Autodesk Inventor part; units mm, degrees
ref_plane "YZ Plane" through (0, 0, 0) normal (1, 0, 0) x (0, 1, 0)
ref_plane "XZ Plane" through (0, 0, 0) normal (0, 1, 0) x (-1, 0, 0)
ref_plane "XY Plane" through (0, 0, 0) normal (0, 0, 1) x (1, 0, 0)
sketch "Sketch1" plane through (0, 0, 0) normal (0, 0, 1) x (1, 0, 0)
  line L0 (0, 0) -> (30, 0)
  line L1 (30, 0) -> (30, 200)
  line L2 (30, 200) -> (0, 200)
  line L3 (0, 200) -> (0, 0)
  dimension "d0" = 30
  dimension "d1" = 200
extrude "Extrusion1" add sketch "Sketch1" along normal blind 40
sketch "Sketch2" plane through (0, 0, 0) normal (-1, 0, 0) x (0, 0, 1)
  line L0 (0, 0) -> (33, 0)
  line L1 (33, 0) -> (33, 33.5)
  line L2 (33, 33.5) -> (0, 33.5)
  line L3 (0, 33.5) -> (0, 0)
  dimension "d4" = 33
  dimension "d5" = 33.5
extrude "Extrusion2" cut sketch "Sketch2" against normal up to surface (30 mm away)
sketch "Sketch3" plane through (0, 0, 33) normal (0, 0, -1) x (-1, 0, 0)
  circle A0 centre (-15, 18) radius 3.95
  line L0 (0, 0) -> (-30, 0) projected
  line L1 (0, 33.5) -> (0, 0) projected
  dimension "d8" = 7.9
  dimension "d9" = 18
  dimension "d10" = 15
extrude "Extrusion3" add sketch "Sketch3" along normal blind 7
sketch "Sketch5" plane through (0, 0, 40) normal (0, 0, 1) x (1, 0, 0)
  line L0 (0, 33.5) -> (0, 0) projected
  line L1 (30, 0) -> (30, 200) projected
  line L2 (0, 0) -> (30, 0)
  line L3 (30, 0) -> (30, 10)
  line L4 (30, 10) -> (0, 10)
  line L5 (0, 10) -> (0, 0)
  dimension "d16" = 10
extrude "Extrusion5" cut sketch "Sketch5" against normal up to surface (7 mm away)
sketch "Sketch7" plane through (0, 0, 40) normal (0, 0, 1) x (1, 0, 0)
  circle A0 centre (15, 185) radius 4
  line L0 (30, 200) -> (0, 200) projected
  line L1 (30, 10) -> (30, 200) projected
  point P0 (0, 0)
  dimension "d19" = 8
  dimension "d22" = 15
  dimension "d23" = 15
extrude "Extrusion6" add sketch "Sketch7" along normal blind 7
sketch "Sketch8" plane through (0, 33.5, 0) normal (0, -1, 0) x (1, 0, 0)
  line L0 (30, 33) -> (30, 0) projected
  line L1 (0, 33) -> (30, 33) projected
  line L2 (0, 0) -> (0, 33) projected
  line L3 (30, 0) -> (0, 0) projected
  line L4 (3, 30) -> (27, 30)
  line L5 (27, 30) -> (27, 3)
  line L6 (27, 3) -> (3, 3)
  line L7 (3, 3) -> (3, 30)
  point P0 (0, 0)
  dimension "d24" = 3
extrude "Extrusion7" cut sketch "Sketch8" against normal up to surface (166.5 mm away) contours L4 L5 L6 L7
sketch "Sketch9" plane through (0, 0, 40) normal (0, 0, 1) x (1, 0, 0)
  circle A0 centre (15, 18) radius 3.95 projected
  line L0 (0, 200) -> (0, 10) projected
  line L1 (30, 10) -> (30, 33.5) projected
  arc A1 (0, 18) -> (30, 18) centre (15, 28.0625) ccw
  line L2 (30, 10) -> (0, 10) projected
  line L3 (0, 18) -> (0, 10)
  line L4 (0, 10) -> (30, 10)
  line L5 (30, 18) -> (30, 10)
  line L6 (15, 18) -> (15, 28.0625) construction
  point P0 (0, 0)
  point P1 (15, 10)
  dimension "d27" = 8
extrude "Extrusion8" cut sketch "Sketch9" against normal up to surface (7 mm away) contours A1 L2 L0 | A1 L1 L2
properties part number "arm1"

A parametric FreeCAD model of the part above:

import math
import FreeCAD as App
import Part
import Sketcher


def add_polygon(sketch, points):
    """Adds a closed chain of lines whose ends are joined by coincident constraints."""
    first, n = sketch.GeometryCount, len(points)
    for a, b in zip(points, points[1:] + points[:1]):
        sketch.addGeometry(Part.LineSegment(App.Vector(*a, 0), App.Vector(*b, 0)), False)
    for i in range(n):
        sketch.addConstraint(Sketcher.Constraint("Coincident", first + i, 2, first + (i + 1) % n, 1))

doc = App.newDocument("Part")
body = doc.addObject("PartDesign::Body", "Body")

# Sketch on XY plane
sketch1 = body.newObject("Sketcher::SketchObject", "Sketch")
sketch1.AttachmentSupport = (doc.getObject("XY_Plane"), [""])
sketch1.MapMode = "FlatFace"
add_polygon(sketch1, [(0, 200), (0, 0), (30, 0), (30, 200)])  # lines 0-3
sketch1.addConstraint(Sketcher.Constraint("Vertical", 0))
sketch1.addConstraint(Sketcher.Constraint("Horizontal", 1))
sketch1.addConstraint(Sketcher.Constraint("Vertical", 2))
sketch1.addConstraint(Sketcher.Constraint("Horizontal", 3))
sketch1.addConstraint(Sketcher.Constraint("Coincident", 0, 2, -1, 1))
sketch1.addConstraint(Sketcher.Constraint("DistanceX", 1, 1, 1, 2, 30.0))
sketch1.addConstraint(Sketcher.Constraint("DistanceY", 0, 2, 0, 1, 200.0))
pad1 = body.newObject("PartDesign::Pad", "Pad")
pad1.Profile = sketch1
pad1.Length = 40

# Sketch on YZ plane
sketch2 = body.newObject("Sketcher::SketchObject", "Sketch001")
sketch2.AttachmentSupport = (doc.getObject("YZ_Plane"), [""])
sketch2.MapMode = "FlatFace"
add_polygon(sketch2, [(33.5, 0), (0, 0), (0, 33), (33.5, 33)])  # lines 0-3
sketch2.addConstraint(Sketcher.Constraint("Horizontal", 0))
sketch2.addConstraint(Sketcher.Constraint("Vertical", 1))
sketch2.addConstraint(Sketcher.Constraint("Horizontal", 2))
sketch2.addConstraint(Sketcher.Constraint("Vertical", 3))
sketch2.addConstraint(Sketcher.Constraint("Coincident", 0, 2, -1, 1))
sketch2.addConstraint(Sketcher.Constraint("DistanceY", 1, 1, 1, 2, 33.0))
sketch2.addConstraint(Sketcher.Constraint("DistanceX", 0, 2, 0, 1, 33.5))
pocket1 = body.newObject("PartDesign::Pocket", "Pocket")
pocket1.Profile = sketch2
pocket1.Length = 30
pocket1.Reversed = True

# Sketch on XY plane
sketch3 = body.newObject("Sketcher::SketchObject", "Sketch002")
sketch3.AttachmentSupport = (doc.getObject("XY_Plane"), [""])
sketch3.MapMode = "FlatFace"
sketch3.AttachmentOffset = App.Placement(App.Vector(0, 0, 33), App.Rotation())
sketch3.addGeometry(Part.Circle(App.Vector(15, 18, 0), App.Vector(0, 0, 1), 3.95), False)
sketch3.addConstraint(Sketcher.Constraint("Diameter", 0, 7.9))
sketch3.addConstraint(Sketcher.Constraint("DistanceX", -1, 1, 0, 3, 15.0))
sketch3.addConstraint(Sketcher.Constraint("DistanceY", -1, 1, 0, 3, 18.0))
pad2 = body.newObject("PartDesign::Pad", "Pad001")
pad2.Profile = sketch3
pad2.Length = 7
pad2.Reversed = True

# Sketch on XY plane
sketch4 = body.newObject("Sketcher::SketchObject", "Sketch003")
sketch4.AttachmentSupport = (doc.getObject("XY_Plane"), [""])
sketch4.MapMode = "FlatFace"
sketch4.AttachmentOffset = App.Placement(App.Vector(0, 0, 40), App.Rotation())
add_polygon(sketch4, [(30, 10), (0, 10), (0, 0), (30, 0)])  # lines 0-3
sketch4.addConstraint(Sketcher.Constraint("Horizontal", 0))
sketch4.addConstraint(Sketcher.Constraint("Vertical", 1))
sketch4.addConstraint(Sketcher.Constraint("Horizontal", 2))
sketch4.addConstraint(Sketcher.Constraint("Vertical", 3))
sketch4.addConstraint(Sketcher.Constraint("Coincident", 1, 2, -1, 1))
sketch4.addConstraint(Sketcher.Constraint("DistanceY", 1, 2, 1, 1, 10.0))
sketch4.addConstraint(Sketcher.Constraint("DistanceX", 0, 2, 0, 1, 30.0))
pocket2 = body.newObject("PartDesign::Pocket", "Pocket001")
pocket2.Profile = sketch4
pocket2.Length = 7

# Sketch on XY plane
sketch5 = body.newObject("Sketcher::SketchObject", "Sketch004")
sketch5.AttachmentSupport = (doc.getObject("XY_Plane"), [""])
sketch5.MapMode = "FlatFace"
sketch5.AttachmentOffset = App.Placement(App.Vector(0, 0, 40), App.Rotation())
sketch5.addGeometry(Part.Circle(App.Vector(15, 185, 0), App.Vector(0, 0, 1), 4), False)
sketch5.addConstraint(Sketcher.Constraint("Diameter", 0, 8.0))
sketch5.addConstraint(Sketcher.Constraint("DistanceX", -1, 1, 0, 3, 15.0))
sketch5.addConstraint(Sketcher.Constraint("DistanceY", -1, 1, 0, 3, 185.0))
pad3 = body.newObject("PartDesign::Pad", "Pad002")
pad3.Profile = sketch5
pad3.Length = 7

# Sketch on XZ plane
sketch6 = body.newObject("Sketcher::SketchObject", "Sketch005")
sketch6.AttachmentSupport = (doc.getObject("XZ_Plane"), [""])
sketch6.MapMode = "FlatFace"
sketch6.AttachmentOffset = App.Placement(App.Vector(0, 0, -33.5), App.Rotation())
add_polygon(sketch6, [(27, 30), (3, 30), (3, 3), (27, 3)])  # lines 0-3
sketch6.addConstraint(Sketcher.Constraint("Horizontal", 0))
sketch6.addConstraint(Sketcher.Constraint("Vertical", 1))
sketch6.addConstraint(Sketcher.Constraint("Horizontal", 2))
sketch6.addConstraint(Sketcher.Constraint("Vertical", 3))
sketch6.addConstraint(Sketcher.Constraint("DistanceX", -1, 1, 0, 2, 3.0))
sketch6.addConstraint(Sketcher.Constraint("DistanceY", -1, 1, 1, 2, 3.0))
sketch6.addConstraint(Sketcher.Constraint("DistanceX", 0, 2, 0, 1, 24.0))
sketch6.addConstraint(Sketcher.Constraint("DistanceY", 1, 2, 1, 1, 27.0))
pocket3 = body.newObject("PartDesign::Pocket", "Pocket002")
pocket3.Profile = sketch6
pocket3.Length = 166.5

# Sketch on XY plane
sketch7 = body.newObject("Sketcher::SketchObject", "Sketch006")
sketch7.AttachmentSupport = (doc.getObject("XY_Plane"), [""])
sketch7.MapMode = "FlatFace"
sketch7.AttachmentOffset = App.Placement(App.Vector(0, 0, 40), App.Rotation())
sketch7.addGeometry(Part.ArcOfCircle(Part.Circle(App.Vector(15, 28.0625, 0), App.Vector(0, 0, 1), 18.0625), math.radians(-146.144974), math.radians(-90)), False)
sketch7.addGeometry(Part.LineSegment(App.Vector(0, 18, 0), App.Vector(0, 10, 0)), False)
sketch7.addGeometry(Part.LineSegment(App.Vector(0, 10, 0), App.Vector(15, 10, 0)), False)
sketch7.addGeometry(Part.ArcOfCircle(Part.Circle(App.Vector(15, 28.0625, 0), App.Vector(0, 0, 1), 18.0625), math.radians(-90), math.radians(-33.855026)), False)
sketch7.addGeometry(Part.LineSegment(App.Vector(15, 10, 0), App.Vector(30, 10, 0)), False)
sketch7.addGeometry(Part.LineSegment(App.Vector(30, 10, 0), App.Vector(30, 18, 0)), False)
sketch7.addConstraint(Sketcher.Constraint("Coincident", 0, 1, 1, 1))
sketch7.addConstraint(Sketcher.Constraint("Coincident", 1, 2, 2, 1))
sketch7.addConstraint(Sketcher.Constraint("Tangent", 2, 2, 0, 2))
sketch7.addConstraint(Sketcher.Constraint("Tangent", 3, 1, 4, 1))
sketch7.addConstraint(Sketcher.Constraint("Coincident", 4, 2, 5, 1))
sketch7.addConstraint(Sketcher.Constraint("Coincident", 5, 2, 3, 2))
sketch7.addConstraint(Sketcher.Constraint("Vertical", 1))
sketch7.addConstraint(Sketcher.Constraint("Horizontal", 2))
sketch7.addConstraint(Sketcher.Constraint("Horizontal", 4))
sketch7.addConstraint(Sketcher.Constraint("Vertical", 5))
sketch7.addConstraint(Sketcher.Constraint("Coincident", 3, 3, 0, 3))
sketch7.addConstraint(Sketcher.Constraint("Equal", 0, 3))
sketch7.addConstraint(Sketcher.Constraint("PointOnObject", 0, 1, -2))
sketch7.addConstraint(Sketcher.Constraint("Horizontal", 0, 1, 5, 2))
sketch7.addConstraint(Sketcher.Constraint("DistanceY", 1, 2, 1, 1, 8.0))
sketch7.addConstraint(Sketcher.Constraint("DistanceX", 2, 1, 2, 2, 15.0))
sketch7.addConstraint(Sketcher.Constraint("DistanceY", -1, 1, 0, 1, 18.0))
pocket4 = body.newObject("PartDesign::Pocket", "Pocket003")
pocket4.Profile = sketch7
pocket4.Length = 7

doc.recompute()
